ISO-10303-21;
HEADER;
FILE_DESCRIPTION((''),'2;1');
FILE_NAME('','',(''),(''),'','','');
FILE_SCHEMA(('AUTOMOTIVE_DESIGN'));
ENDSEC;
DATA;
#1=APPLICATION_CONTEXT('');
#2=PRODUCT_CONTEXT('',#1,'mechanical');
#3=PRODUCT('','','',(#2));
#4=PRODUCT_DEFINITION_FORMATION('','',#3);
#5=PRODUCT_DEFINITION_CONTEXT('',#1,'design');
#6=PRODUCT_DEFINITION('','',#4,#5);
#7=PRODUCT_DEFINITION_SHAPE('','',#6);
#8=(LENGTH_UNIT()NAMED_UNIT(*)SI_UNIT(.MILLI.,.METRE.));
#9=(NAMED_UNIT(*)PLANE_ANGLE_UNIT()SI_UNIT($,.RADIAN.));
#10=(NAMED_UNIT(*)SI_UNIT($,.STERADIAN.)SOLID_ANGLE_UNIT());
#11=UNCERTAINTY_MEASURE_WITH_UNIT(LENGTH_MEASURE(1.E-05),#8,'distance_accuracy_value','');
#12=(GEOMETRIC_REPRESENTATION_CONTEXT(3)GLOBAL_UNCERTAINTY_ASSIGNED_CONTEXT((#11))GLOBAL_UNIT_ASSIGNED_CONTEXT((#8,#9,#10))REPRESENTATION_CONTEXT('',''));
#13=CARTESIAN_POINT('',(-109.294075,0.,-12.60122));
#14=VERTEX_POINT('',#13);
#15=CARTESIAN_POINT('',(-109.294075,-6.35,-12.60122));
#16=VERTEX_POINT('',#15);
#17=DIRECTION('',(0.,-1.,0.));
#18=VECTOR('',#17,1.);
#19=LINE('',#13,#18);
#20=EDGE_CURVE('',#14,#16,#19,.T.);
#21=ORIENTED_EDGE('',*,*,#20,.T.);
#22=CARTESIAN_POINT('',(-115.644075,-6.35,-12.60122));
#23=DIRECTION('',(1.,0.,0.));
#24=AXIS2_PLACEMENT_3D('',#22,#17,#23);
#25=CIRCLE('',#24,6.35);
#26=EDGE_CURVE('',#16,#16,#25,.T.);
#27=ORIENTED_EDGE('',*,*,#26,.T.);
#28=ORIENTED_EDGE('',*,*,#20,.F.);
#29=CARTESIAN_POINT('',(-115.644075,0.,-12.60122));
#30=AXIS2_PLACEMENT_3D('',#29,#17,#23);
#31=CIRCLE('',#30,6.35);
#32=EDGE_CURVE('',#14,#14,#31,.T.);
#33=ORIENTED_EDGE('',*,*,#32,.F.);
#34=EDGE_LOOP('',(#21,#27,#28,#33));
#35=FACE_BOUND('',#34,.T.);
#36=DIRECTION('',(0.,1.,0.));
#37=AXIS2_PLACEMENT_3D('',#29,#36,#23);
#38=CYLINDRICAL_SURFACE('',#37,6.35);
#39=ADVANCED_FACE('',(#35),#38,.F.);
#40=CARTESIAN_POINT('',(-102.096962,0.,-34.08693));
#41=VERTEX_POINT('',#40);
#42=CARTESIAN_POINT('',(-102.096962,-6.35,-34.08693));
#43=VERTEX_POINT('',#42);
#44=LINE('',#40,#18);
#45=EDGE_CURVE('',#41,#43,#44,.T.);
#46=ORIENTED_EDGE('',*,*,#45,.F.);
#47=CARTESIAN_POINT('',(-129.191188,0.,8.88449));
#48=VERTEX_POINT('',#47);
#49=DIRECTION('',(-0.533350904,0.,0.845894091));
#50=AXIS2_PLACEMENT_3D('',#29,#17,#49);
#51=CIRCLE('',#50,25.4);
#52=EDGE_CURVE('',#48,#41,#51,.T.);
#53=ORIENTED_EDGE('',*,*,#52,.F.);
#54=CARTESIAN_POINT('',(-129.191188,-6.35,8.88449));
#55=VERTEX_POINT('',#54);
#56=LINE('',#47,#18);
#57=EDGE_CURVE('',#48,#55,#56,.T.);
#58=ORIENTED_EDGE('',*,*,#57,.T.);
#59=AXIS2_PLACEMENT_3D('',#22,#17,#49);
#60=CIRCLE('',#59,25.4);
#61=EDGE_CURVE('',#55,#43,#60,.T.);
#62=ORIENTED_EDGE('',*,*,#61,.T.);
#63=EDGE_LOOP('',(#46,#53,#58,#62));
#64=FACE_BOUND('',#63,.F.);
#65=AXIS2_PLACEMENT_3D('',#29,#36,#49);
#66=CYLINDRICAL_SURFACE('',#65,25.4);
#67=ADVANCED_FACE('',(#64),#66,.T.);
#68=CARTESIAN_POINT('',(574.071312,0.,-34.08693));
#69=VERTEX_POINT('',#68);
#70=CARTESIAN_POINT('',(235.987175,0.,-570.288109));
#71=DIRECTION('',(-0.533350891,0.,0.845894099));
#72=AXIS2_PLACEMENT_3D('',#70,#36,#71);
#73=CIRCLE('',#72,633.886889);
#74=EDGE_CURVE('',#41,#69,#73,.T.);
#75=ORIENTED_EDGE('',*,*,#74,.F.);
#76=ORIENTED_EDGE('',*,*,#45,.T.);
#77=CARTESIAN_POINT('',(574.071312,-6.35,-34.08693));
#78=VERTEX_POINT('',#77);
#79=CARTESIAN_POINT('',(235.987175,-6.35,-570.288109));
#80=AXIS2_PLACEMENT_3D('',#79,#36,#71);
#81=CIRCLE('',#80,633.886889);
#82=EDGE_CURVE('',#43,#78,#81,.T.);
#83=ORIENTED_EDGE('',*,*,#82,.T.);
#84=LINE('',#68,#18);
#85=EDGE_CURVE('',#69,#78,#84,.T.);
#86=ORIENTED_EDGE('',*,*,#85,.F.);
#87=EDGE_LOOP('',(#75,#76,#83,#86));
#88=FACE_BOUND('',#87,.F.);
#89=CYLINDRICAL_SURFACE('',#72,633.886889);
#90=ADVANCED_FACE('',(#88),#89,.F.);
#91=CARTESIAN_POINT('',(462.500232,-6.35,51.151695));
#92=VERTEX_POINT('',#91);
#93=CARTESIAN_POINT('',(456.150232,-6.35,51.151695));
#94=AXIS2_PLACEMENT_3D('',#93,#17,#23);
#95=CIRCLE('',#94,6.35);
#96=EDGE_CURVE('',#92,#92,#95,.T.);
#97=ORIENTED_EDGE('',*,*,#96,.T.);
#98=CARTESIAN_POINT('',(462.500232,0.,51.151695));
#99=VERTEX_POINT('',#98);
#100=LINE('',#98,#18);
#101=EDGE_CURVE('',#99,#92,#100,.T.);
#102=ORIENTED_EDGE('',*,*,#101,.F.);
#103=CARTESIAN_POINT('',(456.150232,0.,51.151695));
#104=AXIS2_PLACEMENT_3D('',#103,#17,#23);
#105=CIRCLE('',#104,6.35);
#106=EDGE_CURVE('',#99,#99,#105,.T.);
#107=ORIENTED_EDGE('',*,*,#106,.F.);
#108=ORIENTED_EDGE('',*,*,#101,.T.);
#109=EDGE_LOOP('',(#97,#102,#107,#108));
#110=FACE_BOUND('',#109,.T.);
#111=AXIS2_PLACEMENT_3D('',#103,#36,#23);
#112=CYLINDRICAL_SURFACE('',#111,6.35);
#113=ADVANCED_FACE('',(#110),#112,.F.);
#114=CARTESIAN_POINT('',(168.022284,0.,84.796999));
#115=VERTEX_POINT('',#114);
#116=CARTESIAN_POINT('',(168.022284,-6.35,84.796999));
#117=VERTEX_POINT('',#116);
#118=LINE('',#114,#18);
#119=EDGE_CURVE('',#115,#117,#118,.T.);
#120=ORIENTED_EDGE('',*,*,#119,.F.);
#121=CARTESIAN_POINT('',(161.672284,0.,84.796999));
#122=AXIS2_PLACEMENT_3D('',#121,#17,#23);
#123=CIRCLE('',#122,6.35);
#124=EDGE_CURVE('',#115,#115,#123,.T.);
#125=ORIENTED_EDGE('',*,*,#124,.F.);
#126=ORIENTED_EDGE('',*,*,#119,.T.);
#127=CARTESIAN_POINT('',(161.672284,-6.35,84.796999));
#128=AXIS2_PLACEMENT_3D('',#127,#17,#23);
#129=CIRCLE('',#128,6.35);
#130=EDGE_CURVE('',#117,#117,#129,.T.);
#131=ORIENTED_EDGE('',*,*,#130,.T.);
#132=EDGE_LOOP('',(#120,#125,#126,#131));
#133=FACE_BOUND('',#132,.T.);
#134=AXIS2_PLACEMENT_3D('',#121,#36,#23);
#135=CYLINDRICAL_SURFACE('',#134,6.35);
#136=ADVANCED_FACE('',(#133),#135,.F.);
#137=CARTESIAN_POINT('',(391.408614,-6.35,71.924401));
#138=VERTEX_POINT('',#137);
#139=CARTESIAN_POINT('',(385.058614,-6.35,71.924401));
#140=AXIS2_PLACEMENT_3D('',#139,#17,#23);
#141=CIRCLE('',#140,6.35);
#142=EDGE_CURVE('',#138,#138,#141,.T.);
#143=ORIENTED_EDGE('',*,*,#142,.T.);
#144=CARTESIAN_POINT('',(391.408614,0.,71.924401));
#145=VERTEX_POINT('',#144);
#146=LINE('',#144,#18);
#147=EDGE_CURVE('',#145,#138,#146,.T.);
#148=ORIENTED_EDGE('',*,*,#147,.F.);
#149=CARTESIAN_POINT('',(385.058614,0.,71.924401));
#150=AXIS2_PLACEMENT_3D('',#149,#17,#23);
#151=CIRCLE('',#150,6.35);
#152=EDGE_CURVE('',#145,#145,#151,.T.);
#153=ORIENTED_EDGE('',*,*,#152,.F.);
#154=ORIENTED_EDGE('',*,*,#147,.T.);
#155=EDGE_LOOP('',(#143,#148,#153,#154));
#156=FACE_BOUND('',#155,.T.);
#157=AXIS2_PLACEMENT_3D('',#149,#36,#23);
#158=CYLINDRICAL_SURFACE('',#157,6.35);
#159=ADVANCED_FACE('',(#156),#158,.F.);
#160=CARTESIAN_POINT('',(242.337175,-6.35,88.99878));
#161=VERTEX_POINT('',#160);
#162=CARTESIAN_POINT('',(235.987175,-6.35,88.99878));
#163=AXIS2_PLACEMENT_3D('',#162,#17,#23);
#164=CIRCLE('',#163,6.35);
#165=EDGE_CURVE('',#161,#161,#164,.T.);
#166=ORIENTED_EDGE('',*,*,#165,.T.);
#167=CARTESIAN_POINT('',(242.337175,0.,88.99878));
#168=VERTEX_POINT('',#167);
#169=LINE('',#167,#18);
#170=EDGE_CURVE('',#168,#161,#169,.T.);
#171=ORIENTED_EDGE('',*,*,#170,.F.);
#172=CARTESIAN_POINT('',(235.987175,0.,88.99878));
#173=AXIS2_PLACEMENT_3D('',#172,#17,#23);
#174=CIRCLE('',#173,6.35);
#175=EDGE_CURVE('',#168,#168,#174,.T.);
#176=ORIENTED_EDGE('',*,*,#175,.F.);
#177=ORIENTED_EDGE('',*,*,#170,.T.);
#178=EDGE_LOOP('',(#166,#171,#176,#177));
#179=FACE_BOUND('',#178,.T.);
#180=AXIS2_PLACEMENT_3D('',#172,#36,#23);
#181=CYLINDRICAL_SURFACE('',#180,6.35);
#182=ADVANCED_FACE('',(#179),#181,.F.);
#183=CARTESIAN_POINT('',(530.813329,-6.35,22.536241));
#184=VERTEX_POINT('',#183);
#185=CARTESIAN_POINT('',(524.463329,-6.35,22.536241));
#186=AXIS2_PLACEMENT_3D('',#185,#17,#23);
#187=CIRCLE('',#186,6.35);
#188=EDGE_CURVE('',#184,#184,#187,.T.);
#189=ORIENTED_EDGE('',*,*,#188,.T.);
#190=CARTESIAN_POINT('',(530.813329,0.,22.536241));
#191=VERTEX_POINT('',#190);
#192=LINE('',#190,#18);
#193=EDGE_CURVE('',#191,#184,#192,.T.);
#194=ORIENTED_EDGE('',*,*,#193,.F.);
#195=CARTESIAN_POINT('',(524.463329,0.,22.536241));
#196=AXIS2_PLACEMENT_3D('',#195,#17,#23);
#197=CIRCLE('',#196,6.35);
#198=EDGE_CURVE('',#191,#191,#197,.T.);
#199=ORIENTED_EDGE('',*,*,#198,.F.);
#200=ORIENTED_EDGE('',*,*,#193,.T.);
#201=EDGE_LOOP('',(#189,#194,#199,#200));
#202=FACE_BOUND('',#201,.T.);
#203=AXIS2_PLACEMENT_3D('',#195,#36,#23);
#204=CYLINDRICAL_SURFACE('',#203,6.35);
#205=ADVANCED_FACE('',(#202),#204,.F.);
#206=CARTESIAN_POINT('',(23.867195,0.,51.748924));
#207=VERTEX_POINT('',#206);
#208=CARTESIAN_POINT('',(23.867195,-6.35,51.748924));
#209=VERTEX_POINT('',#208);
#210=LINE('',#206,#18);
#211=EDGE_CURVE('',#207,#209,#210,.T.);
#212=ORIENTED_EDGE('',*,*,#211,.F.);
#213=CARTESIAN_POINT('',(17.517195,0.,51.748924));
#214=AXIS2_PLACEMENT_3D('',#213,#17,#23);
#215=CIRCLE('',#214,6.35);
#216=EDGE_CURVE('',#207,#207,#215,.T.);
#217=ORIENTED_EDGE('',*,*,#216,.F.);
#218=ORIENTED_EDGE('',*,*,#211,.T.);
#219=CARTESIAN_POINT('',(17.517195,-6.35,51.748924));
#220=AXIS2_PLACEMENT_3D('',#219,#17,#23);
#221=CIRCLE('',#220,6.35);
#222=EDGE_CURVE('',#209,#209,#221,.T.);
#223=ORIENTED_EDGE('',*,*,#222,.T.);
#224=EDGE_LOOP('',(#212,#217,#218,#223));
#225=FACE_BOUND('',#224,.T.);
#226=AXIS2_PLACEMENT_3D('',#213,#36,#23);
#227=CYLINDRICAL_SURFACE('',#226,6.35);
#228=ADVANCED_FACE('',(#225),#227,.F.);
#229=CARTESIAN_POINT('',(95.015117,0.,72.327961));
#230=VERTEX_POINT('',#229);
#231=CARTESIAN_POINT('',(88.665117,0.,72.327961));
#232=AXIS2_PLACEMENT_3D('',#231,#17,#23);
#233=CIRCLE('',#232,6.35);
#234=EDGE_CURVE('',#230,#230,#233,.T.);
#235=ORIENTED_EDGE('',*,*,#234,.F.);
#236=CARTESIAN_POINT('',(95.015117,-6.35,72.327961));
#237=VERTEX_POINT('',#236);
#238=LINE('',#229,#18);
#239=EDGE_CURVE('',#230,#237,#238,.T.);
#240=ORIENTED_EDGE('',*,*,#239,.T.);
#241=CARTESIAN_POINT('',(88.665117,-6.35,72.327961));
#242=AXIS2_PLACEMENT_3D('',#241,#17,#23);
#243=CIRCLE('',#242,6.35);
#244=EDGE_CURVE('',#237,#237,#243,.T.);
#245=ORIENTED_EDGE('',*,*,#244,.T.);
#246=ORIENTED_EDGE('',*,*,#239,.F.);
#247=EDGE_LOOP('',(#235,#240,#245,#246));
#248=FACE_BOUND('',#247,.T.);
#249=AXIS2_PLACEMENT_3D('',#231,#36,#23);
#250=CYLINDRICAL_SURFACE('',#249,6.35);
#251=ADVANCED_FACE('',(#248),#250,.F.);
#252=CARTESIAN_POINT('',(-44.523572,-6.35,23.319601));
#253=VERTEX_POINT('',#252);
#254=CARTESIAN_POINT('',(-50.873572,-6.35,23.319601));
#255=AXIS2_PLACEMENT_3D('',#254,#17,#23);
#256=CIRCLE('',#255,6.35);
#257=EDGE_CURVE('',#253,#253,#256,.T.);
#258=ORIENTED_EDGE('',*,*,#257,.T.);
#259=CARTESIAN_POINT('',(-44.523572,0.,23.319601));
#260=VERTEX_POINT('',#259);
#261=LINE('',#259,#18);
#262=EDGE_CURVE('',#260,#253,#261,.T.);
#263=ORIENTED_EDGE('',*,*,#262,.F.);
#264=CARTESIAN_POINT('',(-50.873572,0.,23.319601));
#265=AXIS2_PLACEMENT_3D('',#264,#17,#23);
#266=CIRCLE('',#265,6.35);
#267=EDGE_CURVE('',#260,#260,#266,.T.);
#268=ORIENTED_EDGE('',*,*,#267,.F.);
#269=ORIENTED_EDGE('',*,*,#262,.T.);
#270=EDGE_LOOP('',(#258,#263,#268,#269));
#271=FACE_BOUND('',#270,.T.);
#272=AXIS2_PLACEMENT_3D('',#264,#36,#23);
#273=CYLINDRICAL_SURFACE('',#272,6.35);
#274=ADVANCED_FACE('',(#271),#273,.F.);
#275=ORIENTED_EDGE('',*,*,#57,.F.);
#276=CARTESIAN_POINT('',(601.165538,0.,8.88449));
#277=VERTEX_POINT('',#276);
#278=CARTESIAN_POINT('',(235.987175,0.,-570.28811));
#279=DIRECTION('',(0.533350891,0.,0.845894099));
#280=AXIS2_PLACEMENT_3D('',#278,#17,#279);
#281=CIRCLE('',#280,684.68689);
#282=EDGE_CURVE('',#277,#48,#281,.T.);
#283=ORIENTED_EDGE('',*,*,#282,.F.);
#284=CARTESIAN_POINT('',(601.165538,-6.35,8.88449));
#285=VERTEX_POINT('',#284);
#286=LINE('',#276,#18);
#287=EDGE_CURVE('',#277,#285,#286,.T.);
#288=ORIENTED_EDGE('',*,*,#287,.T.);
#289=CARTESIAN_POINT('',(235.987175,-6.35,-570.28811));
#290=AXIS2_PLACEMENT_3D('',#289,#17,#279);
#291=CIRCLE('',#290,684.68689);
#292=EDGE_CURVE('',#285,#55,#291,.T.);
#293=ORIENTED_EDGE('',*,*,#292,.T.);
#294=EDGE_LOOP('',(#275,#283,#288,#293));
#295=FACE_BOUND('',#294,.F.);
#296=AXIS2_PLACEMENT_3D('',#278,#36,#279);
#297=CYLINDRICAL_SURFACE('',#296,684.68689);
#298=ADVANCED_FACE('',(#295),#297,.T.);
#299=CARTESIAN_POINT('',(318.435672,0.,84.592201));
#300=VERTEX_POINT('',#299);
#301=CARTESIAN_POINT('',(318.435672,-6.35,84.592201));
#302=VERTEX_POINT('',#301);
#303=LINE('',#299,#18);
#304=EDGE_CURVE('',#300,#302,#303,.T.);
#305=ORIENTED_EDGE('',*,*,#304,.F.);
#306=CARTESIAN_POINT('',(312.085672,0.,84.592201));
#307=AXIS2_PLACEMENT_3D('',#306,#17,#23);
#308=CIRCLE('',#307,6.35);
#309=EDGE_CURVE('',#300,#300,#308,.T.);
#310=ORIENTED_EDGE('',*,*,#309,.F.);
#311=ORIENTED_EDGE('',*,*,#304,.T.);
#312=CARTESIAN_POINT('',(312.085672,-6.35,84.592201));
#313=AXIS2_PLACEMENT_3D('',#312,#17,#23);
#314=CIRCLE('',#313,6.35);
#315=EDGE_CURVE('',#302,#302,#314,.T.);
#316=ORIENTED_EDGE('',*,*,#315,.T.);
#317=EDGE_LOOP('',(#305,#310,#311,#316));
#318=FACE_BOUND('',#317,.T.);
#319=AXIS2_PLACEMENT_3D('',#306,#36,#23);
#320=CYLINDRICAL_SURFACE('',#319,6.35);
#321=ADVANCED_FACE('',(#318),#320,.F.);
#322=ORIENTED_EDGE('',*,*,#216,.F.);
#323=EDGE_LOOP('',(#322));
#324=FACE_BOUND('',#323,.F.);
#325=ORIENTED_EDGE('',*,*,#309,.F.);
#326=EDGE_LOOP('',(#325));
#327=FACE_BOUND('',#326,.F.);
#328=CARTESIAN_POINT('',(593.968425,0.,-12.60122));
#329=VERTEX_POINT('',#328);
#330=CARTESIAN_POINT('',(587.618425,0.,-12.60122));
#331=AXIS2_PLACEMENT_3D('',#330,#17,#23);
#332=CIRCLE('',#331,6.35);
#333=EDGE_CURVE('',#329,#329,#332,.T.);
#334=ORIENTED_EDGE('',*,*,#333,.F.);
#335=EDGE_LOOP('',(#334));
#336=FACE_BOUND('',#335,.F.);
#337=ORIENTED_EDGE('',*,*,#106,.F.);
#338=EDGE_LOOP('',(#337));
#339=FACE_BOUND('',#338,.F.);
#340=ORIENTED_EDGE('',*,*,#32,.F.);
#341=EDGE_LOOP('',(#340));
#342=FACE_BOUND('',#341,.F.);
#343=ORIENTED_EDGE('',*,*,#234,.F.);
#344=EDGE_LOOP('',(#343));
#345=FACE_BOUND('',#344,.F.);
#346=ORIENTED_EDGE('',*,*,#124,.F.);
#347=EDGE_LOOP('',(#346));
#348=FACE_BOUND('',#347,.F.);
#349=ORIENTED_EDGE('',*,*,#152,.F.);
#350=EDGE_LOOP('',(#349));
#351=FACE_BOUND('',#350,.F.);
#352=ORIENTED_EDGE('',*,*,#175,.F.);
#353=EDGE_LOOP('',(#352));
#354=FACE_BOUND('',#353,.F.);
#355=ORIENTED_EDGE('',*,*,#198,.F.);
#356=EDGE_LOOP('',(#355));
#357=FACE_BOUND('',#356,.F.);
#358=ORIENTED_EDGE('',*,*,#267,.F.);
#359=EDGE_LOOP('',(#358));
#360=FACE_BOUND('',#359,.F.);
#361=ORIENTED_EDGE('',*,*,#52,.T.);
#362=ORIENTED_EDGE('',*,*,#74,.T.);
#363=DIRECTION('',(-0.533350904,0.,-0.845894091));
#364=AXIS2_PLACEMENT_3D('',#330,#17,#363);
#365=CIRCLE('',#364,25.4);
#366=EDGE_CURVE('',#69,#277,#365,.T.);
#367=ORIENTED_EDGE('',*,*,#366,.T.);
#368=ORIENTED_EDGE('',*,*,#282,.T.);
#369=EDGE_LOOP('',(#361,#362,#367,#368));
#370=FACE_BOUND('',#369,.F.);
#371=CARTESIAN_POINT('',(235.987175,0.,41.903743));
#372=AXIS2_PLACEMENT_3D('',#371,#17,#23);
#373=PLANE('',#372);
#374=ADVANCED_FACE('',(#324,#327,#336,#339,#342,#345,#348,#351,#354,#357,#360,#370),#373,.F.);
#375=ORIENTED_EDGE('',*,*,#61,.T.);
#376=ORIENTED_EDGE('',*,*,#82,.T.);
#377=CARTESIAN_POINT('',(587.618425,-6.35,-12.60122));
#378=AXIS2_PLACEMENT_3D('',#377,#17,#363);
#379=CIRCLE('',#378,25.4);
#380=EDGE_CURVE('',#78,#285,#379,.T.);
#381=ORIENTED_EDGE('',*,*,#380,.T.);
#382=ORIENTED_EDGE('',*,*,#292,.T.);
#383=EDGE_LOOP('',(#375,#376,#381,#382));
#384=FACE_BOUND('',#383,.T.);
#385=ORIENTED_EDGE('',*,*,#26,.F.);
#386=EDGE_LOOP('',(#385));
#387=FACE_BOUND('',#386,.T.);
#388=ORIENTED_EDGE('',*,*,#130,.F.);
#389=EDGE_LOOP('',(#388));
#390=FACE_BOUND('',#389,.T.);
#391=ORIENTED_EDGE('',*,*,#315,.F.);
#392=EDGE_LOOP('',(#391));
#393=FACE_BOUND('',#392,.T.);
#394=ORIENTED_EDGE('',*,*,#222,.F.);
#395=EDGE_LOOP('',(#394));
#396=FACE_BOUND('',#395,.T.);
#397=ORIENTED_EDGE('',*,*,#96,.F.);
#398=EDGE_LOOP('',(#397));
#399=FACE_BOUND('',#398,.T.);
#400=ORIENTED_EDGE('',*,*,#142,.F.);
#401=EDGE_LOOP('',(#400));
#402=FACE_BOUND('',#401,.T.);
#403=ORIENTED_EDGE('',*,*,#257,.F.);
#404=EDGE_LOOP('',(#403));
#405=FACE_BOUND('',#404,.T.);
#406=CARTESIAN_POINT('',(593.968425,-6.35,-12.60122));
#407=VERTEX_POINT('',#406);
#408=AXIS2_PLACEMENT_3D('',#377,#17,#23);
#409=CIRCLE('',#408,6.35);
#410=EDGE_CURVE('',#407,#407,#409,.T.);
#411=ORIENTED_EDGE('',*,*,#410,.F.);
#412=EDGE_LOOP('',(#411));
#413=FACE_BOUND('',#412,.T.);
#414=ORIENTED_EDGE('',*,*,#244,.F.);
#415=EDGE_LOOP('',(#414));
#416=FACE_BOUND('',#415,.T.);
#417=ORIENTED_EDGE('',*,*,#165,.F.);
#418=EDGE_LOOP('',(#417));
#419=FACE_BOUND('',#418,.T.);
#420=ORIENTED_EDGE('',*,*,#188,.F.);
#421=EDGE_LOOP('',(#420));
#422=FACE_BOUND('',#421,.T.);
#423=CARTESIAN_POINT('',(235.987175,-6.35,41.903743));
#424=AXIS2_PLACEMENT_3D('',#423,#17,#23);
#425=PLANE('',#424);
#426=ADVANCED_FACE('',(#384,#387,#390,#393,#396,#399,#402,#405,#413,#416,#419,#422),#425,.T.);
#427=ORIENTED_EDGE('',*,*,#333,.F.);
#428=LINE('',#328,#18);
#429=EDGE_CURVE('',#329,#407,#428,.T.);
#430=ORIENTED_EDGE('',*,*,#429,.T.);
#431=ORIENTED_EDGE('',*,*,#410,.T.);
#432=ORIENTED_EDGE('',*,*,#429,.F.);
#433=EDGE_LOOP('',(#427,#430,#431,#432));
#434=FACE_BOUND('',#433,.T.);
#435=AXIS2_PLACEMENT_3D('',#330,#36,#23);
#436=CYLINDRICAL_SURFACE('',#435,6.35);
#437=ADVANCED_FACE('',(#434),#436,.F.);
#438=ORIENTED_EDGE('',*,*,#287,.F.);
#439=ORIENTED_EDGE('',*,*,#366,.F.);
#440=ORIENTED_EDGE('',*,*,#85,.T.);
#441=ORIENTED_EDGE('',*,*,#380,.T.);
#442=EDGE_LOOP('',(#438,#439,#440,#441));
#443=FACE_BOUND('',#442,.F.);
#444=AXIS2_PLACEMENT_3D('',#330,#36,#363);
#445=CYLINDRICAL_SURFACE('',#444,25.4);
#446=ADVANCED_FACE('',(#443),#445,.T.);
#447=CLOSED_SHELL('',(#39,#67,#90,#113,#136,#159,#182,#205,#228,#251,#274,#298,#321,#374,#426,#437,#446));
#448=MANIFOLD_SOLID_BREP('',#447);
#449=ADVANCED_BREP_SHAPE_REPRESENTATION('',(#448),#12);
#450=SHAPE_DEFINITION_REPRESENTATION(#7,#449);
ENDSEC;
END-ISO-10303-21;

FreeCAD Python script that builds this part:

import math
import FreeCAD as App
import Part
import Sketcher
Q = App.Units.Quantity

doc = App.newDocument("Part")
body = doc.addObject("PartDesign::Body", "Body")

# Sketch on XZ plane
sketch1 = doc.addObject("Sketcher::SketchObject", "Sketch")
body.addObject(sketch1)
sketch1.AttachmentSupport = (doc.XZ_Plane, [""])
sketch1.MapMode = "FlatFace"
sketch1.addGeometry(Part.ArcOfCircle(Part.Circle(App.Vector(588, -13, 0), App.Vector(0, 0, 1), 25), math.radians(-122), math.radians(58)), False)
sketch1.addGeometry(Part.ArcOfCircle(Part.Circle(App.Vector(236, -570, 0), App.Vector(0, 0, 1), 685), math.radians(58), math.radians(122)), False)
sketch1.addGeometry(Part.ArcOfCircle(Part.Circle(App.Vector(-116, -13, 0), App.Vector(0, 0, 1), 25), math.radians(122), math.radians(302)), False)
sketch1.addGeometry(Part.ArcOfCircle(Part.Circle(App.Vector(236, -570, 0), App.Vector(0, 0, 1), 634), math.radians(58), math.radians(122)), False)
sketch1.addGeometry(Part.Circle(App.Vector(-116, -13, 0), App.Vector(0, 0, 1), 6), False)
sketch1.addGeometry(Part.Circle(App.Vector(-51, 23, 0), App.Vector(0, 0, 1), 6), False)
sketch1.addGeometry(Part.Circle(App.Vector(588, -13, 0), App.Vector(0, 0, 1), 6), False)
sketch1.addGeometry(Part.Circle(App.Vector(524, 23, 0), App.Vector(0, 0, 1), 6), False)
sketch1.addGeometry(Part.Circle(App.Vector(18, 52, 0), App.Vector(0, 0, 1), 6), False)
sketch1.addGeometry(Part.Circle(App.Vector(89, 72, 0), App.Vector(0, 0, 1), 6), False)
sketch1.addGeometry(Part.Circle(App.Vector(162, 85, 0), App.Vector(0, 0, 1), 6), False)
sketch1.addGeometry(Part.Circle(App.Vector(456, 51, 0), App.Vector(0, 0, 1), 6), False)
sketch1.addGeometry(Part.Circle(App.Vector(385, 72, 0), App.Vector(0, 0, 1), 6), False)
sketch1.addGeometry(Part.Circle(App.Vector(312, 85, 0), App.Vector(0, 0, 1), 6), False)
sketch1.addGeometry(Part.Circle(App.Vector(236, 89, 0), App.Vector(0, 0, 1), 6), False)
sketch1.addConstraint(Sketcher.Constraint("Tangent", 0, 2, 1, 1))
sketch1.addConstraint(Sketcher.Constraint("Tangent", 1, 2, 2, 1))
sketch1.addConstraint(Sketcher.Constraint("Tangent", 2, 2, 3, 2))
sketch1.addConstraint(Sketcher.Constraint("Tangent", 3, 1, 0, 1))
sketch1.addConstraint(Sketcher.Constraint("Coincident", 3, 3, 1, 3))
sketch1.addConstraint(Sketcher.Constraint("Coincident", 4, 3, 2, 3))
sketch1.addConstraint(Sketcher.Constraint("Coincident", 6, 3, 0, 3))
sketch1.addConstraint(Sketcher.Constraint("Equal", 4, 5))
sketch1.addConstraint(Sketcher.Constraint("Equal", 5, 6))
sketch1.addConstraint(Sketcher.Constraint("Equal", 6, 7))
sketch1.addConstraint(Sketcher.Constraint("Equal", 7, 8))
sketch1.addConstraint(Sketcher.Constraint("Equal", 8, 9))
sketch1.addConstraint(Sketcher.Constraint("Equal", 9, 10))
sketch1.addConstraint(Sketcher.Constraint("Equal", 10, 11))
sketch1.addConstraint(Sketcher.Constraint("Equal", 11, 12))
sketch1.addConstraint(Sketcher.Constraint("Equal", 12, 13))
sketch1.addConstraint(Sketcher.Constraint("Equal", 13, 14))
sketch1.addConstraint(Sketcher.Constraint("Horizontal", 0, 3, 2, 3))
sketch1.addConstraint(Sketcher.Constraint("Vertical", 3, 3, 14, 3))
sketch1.addConstraint(Sketcher.Constraint("Radius", 0, Q("1 in")))
sketch1.addConstraint(Sketcher.Constraint("Diameter", 4, Q("0.5 in")))
sketch1.addConstraint(Sketcher.Constraint("Radius", 1, Q("684.68689 mm")))
sketch1.addConstraint(Sketcher.Constraint("DistanceX", 1, 3, 0, 3, Q("13.84375 in")))
sketch1.addConstraint(Sketcher.Constraint("DistanceY", -1, 1, 5, 3, Q("23.319601 mm")))
sketch1.addConstraint(Sketcher.Constraint("DistanceY", -1, 1, 10, 3, Q("84.796999 mm")))
sketch1.addConstraint(Sketcher.Constraint("DistanceY", -1, 1, 12, 3, Q("71.924401 mm")))
sketch1.addConstraint(Sketcher.Constraint("DistanceY", -1, 1, 13, 3, Q("84.592201 mm")))
sketch1.addConstraint(Sketcher.Constraint("DistanceX", 5, 3, 7, 3, Q("575.336901 mm")))
sketch1.addConstraint(Sketcher.Constraint("DistanceY", 0, 3, -1, 1, Q("12.60122 mm")))
sketch1.addConstraint(Sketcher.Constraint("DistanceX", -1, 1, 7, 3, Q("524.463329 mm")))
sketch1.addConstraint(Sketcher.Constraint("DistanceY", -1, 1, 7, 3, Q("22.536241 mm")))
sketch1.addConstraint(Sketcher.Constraint("DistanceY", -1, 1, 9, 3, Q("72.327961 mm")))
sketch1.addConstraint(Sketcher.Constraint("DistanceX", -1, 1, 11, 3, Q("456.150232 mm")))
sketch1.addConstraint(Sketcher.Constraint("DistanceX", -1, 1, 13, 3, Q("312.085672 mm")))
sketch1.addConstraint(Sketcher.Constraint("DistanceY", -1, 1, 14, 3, Q("88.99878 mm")))
sketch1.addConstraint(Sketcher.Constraint("DistanceX", 2, 3, 8, 3, Q("133.16127 mm")))
sketch1.addConstraint(Sketcher.Constraint("DistanceX", 8, 3, 9, 3, Q("71.147922 mm")))
sketch1.addConstraint(Sketcher.Constraint("DistanceX", 5, 3, 9, 3, Q("139.538689 mm")))
sketch1.addConstraint(Sketcher.Constraint("DistanceX", 8, 3, 10, 3, Q("144.155089 mm")))
sketch1.addConstraint(Sketcher.Constraint("DistanceX", 12, 3, 11, 3, Q("71.091618 mm")))
sketch1.addConstraint(Sketcher.Constraint("DistanceY", -1, 1, 8, 3, Q("51.748924 mm")))
sketch1.addConstraint(Sketcher.Constraint("DistanceY", -1, 1, 11, 3, Q("51.151695 mm")))
pad1 = doc.addObject("PartDesign::Pad", "Pad")
body.addObject(pad1)
pad1.Profile = sketch1
pad1.Length = Q("0.25 in")

doc.recompute()
